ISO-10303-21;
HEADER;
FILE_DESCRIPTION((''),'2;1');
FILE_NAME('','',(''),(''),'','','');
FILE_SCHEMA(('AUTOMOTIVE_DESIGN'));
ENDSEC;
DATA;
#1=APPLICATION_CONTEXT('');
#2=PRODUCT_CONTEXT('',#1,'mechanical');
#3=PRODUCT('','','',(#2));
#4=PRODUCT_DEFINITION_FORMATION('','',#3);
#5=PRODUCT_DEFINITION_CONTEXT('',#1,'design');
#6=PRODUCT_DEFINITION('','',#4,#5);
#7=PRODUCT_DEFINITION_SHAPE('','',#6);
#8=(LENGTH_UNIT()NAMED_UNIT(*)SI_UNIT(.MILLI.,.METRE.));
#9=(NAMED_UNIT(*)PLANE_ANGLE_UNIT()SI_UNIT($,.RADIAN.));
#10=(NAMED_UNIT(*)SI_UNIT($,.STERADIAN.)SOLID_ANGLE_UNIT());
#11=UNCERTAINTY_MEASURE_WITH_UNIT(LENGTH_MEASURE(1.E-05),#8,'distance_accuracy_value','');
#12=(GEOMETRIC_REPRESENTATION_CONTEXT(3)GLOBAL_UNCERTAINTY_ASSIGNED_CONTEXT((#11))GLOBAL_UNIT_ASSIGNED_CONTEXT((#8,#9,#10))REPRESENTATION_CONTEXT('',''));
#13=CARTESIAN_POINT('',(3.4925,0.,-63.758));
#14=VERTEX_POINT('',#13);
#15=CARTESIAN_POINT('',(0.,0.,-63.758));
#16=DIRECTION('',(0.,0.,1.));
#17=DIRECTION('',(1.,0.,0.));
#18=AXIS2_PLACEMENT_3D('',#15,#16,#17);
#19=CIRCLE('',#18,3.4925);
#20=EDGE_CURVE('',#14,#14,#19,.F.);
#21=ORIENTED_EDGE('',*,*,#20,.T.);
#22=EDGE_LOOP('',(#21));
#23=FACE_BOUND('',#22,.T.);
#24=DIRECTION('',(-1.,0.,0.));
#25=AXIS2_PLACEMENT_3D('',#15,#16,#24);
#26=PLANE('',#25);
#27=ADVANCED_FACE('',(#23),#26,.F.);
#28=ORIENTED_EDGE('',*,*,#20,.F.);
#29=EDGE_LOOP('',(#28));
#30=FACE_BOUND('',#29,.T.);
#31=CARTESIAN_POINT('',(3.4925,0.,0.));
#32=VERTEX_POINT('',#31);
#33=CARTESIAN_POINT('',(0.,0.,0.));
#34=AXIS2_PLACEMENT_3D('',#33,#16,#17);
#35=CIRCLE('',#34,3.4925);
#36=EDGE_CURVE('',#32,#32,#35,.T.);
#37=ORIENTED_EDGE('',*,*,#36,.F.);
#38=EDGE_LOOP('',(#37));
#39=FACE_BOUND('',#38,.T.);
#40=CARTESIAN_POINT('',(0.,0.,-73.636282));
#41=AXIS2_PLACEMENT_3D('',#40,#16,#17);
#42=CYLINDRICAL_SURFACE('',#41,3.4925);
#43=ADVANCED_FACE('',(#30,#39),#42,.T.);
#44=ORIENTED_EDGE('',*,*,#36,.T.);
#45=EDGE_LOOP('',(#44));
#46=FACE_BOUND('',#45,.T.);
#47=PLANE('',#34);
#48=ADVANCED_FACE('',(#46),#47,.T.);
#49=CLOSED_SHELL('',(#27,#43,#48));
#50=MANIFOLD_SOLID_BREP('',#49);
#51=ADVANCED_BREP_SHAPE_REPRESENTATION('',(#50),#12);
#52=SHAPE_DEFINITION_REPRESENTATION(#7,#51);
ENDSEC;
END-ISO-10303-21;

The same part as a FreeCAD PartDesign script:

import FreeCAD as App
import Part
import Sketcher
Q = App.Units.Quantity

doc = App.newDocument("Part")
body = doc.addObject("PartDesign::Body", "Body")

# Sketch on XY plane
sketch1 = body.newObject("Sketcher::SketchObject", "Sketch")
sketch1.AttachmentSupport = (doc.getObject("XY_Plane"), [""])
sketch1.MapMode = "FlatFace"
sketch1.addGeometry(Part.Circle(App.Vector(0, 0, 0), App.Vector(0, 0, 1), 3.4925), False)
sketch1.addConstraint([
    Sketcher.Constraint("Coincident", 0, 3, -1, 1),
    Sketcher.Constraint("Diameter", 0, Q("0.275 in")),
])
pad1 = body.newObject("PartDesign::Pad", "Pad")
pad1.Profile = sketch1
pad1.Length = 63.758
pad1.Reversed = True

doc.recompute()
